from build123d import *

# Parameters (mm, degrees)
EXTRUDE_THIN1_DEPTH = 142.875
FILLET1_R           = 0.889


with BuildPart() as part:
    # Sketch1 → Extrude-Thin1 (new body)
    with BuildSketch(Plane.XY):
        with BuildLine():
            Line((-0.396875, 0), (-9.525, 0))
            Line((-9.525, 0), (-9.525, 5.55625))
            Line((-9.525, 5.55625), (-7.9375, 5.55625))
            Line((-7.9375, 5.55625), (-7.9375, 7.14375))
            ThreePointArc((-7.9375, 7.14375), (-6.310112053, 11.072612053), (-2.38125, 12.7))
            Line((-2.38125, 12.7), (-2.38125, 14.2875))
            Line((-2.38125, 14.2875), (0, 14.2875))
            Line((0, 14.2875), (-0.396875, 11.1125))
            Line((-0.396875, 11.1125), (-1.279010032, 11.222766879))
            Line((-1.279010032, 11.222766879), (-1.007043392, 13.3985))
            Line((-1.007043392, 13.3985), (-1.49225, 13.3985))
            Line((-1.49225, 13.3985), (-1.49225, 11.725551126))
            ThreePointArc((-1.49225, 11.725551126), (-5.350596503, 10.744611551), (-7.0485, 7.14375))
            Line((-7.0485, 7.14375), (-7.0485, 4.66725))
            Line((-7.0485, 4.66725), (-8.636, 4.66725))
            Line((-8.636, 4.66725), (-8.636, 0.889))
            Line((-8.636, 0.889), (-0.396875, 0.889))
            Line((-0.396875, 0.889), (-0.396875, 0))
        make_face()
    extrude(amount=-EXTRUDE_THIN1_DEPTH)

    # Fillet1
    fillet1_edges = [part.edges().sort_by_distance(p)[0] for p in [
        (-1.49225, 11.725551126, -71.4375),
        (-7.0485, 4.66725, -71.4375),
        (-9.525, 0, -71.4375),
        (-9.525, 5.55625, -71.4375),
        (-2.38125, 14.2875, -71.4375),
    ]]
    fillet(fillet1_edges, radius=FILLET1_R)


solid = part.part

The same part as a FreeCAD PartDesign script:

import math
import FreeCAD as App
import Part
import Sketcher
from FreeCAD import Vector
Q = App.Units.Quantity


def edges_at(feature, points):
    """Names of the edges that pass closest to the given points."""
    edges = feature.Shape.Edges
    near = lambda p: min(range(len(edges)), key=lambda i: edges[i].distToShape(Part.Vertex(*p))[0])
    return sorted({f"Edge{near(p) + 1}" for p in points})

doc = App.newDocument("Part")
body = doc.addObject("PartDesign::Body", "Body")

sketch1 = doc.addObject("Sketcher::SketchObject", "Sketch")
body.addObject(sketch1)
sketch1.AttachmentSupport = (doc.XY_Plane, [""])
sketch1.MapMode = "FlatFace"
sketch1.addGeometry([
    Part.LineSegment(Vector(-9.525, 0, 0), Vector(-0.396875, 0, 0)),
    Part.LineSegment(Vector(-0.396875, 0, 0), Vector(-0.396875, 0.889, 0)),
    Part.LineSegment(Vector(-0.396875, 0.889, 0), Vector(-8.636, 0.889, 0)),
    Part.LineSegment(Vector(-8.636, 0.889, 0), Vector(-8.636, 4.66725, 0)),
    Part.LineSegment(Vector(-8.636, 4.66725, 0), Vector(-7.0485, 4.66725, 0)),
    Part.LineSegment(Vector(-7.0485, 4.66725, 0), Vector(-7.0485, 7.14375, 0)),
    Part.ArcOfCircle(Part.Circle(Vector(-2.38125, 7.14375, 0), Vector(0, 0, 1), 4.66725), math.radians(79.019425), math.radians(180)),
    Part.LineSegment(Vector(-1.49225, 11.725551, 0), Vector(-1.49225, 13.3985, 0)),
    Part.LineSegment(Vector(-1.49225, 13.3985, 0), Vector(-1.007043, 13.3985, 0)),
    Part.LineSegment(Vector(-1.007043, 13.3985, 0), Vector(-1.27901, 11.222767, 0)),
    Part.LineSegment(Vector(-1.27901, 11.222767, 0), Vector(-0.396875, 11.1125, 0)),
    Part.LineSegment(Vector(-0.396875, 11.1125, 0), Vector(0, 14.2875, 0)),
    Part.LineSegment(Vector(0, 14.2875, 0), Vector(-2.38125, 14.2875, 0)),
    Part.LineSegment(Vector(-2.38125, 14.2875, 0), Vector(-2.38125, 12.7, 0)),
    Part.ArcOfCircle(Part.Circle(Vector(-2.38125, 7.14375, 0), Vector(0, 0, 1), 5.55625), math.radians(90), math.radians(180)),
    Part.LineSegment(Vector(-7.9375, 7.14375, 0), Vector(-7.9375, 5.55625, 0)),
    Part.LineSegment(Vector(-7.9375, 5.55625, 0), Vector(-9.525, 5.55625, 0)),
    Part.LineSegment(Vector(-9.525, 5.55625, 0), Vector(-9.525, 0, 0)),
], False)
sketch1.addConstraint([
    Sketcher.Constraint("Coincident", 0, 2, 1, 1),
    Sketcher.Constraint("Coincident", 1, 2, 2, 1),
    Sketcher.Constraint("Coincident", 2, 2, 3, 1),
    Sketcher.Constraint("Coincident", 3, 2, 4, 1),
    Sketcher.Constraint("Coincident", 4, 2, 5, 1),
    Sketcher.Constraint("Tangent", 5, 2, 6, 2),
    Sketcher.Constraint("Coincident", 6, 1, 7, 1),
    Sketcher.Constraint("Coincident", 7, 2, 8, 1),
    Sketcher.Constraint("Coincident", 8, 2, 9, 1),
    Sketcher.Constraint("Coincident", 9, 2, 10, 1),
    Sketcher.Constraint("Coincident", 10, 2, 11, 1),
    Sketcher.Constraint("Coincident", 11, 2, 12, 1),
    Sketcher.Constraint("Coincident", 12, 2, 13, 1),
    Sketcher.Constraint("Coincident", 13, 2, 14, 1),
    Sketcher.Constraint("Tangent", 14, 2, 15, 1),
    Sketcher.Constraint("Coincident", 15, 2, 16, 1),
    Sketcher.Constraint("Coincident", 16, 2, 17, 1),
    Sketcher.Constraint("Coincident", 17, 2, 0, 1),
    Sketcher.Constraint("Horizontal", 0),
    Sketcher.Constraint("Vertical", 1),
    Sketcher.Constraint("Horizontal", 2),
    Sketcher.Constraint("Vertical", 3),
    Sketcher.Constraint("Horizontal", 4),
    Sketcher.Constraint("Vertical", 5),
    Sketcher.Constraint("Vertical", 7),
    Sketcher.Constraint("Horizontal", 8),
    Sketcher.Constraint("Horizontal", 12),
    Sketcher.Constraint("Vertical", 13),
    Sketcher.Constraint("Vertical", 15),
    Sketcher.Constraint("Horizontal", 16),
    Sketcher.Constraint("Vertical", 17),
    Sketcher.Constraint("Coincident", 14, 3, 6, 3),
    Sketcher.Constraint("PointOnObject", 0, 2, -1),
    Sketcher.Constraint("PointOnObject", 11, 2, -2),
    Sketcher.Constraint("Perpendicular", 9, 10),
    Sketcher.Constraint("Perpendicular", 10, 11),
    Sketcher.Constraint("Vertical", 1, 2, 10, 2),
    Sketcher.Constraint("Vertical", 14, 3, 12, 2),
    Sketcher.Constraint("Equal", 4, 16),
    Sketcher.Constraint("Equal", 16, 13),
    Sketcher.Constraint("Equal", 13, 15),
    Sketcher.Constraint("Radius", 14, Q("0.21875 in")),
    Sketcher.Constraint("DistanceY", -1, 1, 13, 2, Q("0.5 in")),
    Sketcher.Constraint("DistanceX", 0, 1, 0, 2, Q("0.359375 in")),
    Sketcher.Constraint("DistanceX", 4, 1, 4, 2, Q("0.0625 in")),
    Sketcher.Constraint("DistanceX", 12, 2, 12, 1, Q("0.09375 in")),
    Sketcher.Constraint("DistanceY", 1, 1, 1, 2, Q("0.035 in")),
    Sketcher.Constraint("DistanceX", 2, 2, -1, 1, Q("0.34 in")),
    Sketcher.Constraint("DistanceY", 10, 2, 8, 2, Q("0.09 in")),
    Sketcher.Constraint("Distance", 10, Q("0.035 in")),
    Sketcher.Constraint("DistanceY", 5, 1, 5, 2, Q("0.0975 in")),
    Sketcher.Constraint("DistanceY", -1, 1, 10, 2, Q("0.4375 in")),
    Sketcher.Constraint("DistanceX", 6, 3, 6, 1, Q("0.035 in")),
])
pad1 = doc.addObject("PartDesign::Pad", "Pad")
body.addObject(pad1)
pad1.Profile = sketch1
pad1.Length = Q("5.625 in")
pad1.Reversed = True
doc.recompute()

fillet = doc.addObject("PartDesign::Fillet", "Fillet")
body.addObject(fillet)
fillet.Base = (pad1, edges_at(pad1, [
    (-1.492, 11.726, -71.438),
    (-7.048, 4.667, -71.438),
    (-9.525, 0, -71.438),
    (-9.525, 5.556, -71.438),
    (-2.381, 14.287, -71.438),
]))
fillet.Radius = Q("0.035 in")

doc.recompute()
